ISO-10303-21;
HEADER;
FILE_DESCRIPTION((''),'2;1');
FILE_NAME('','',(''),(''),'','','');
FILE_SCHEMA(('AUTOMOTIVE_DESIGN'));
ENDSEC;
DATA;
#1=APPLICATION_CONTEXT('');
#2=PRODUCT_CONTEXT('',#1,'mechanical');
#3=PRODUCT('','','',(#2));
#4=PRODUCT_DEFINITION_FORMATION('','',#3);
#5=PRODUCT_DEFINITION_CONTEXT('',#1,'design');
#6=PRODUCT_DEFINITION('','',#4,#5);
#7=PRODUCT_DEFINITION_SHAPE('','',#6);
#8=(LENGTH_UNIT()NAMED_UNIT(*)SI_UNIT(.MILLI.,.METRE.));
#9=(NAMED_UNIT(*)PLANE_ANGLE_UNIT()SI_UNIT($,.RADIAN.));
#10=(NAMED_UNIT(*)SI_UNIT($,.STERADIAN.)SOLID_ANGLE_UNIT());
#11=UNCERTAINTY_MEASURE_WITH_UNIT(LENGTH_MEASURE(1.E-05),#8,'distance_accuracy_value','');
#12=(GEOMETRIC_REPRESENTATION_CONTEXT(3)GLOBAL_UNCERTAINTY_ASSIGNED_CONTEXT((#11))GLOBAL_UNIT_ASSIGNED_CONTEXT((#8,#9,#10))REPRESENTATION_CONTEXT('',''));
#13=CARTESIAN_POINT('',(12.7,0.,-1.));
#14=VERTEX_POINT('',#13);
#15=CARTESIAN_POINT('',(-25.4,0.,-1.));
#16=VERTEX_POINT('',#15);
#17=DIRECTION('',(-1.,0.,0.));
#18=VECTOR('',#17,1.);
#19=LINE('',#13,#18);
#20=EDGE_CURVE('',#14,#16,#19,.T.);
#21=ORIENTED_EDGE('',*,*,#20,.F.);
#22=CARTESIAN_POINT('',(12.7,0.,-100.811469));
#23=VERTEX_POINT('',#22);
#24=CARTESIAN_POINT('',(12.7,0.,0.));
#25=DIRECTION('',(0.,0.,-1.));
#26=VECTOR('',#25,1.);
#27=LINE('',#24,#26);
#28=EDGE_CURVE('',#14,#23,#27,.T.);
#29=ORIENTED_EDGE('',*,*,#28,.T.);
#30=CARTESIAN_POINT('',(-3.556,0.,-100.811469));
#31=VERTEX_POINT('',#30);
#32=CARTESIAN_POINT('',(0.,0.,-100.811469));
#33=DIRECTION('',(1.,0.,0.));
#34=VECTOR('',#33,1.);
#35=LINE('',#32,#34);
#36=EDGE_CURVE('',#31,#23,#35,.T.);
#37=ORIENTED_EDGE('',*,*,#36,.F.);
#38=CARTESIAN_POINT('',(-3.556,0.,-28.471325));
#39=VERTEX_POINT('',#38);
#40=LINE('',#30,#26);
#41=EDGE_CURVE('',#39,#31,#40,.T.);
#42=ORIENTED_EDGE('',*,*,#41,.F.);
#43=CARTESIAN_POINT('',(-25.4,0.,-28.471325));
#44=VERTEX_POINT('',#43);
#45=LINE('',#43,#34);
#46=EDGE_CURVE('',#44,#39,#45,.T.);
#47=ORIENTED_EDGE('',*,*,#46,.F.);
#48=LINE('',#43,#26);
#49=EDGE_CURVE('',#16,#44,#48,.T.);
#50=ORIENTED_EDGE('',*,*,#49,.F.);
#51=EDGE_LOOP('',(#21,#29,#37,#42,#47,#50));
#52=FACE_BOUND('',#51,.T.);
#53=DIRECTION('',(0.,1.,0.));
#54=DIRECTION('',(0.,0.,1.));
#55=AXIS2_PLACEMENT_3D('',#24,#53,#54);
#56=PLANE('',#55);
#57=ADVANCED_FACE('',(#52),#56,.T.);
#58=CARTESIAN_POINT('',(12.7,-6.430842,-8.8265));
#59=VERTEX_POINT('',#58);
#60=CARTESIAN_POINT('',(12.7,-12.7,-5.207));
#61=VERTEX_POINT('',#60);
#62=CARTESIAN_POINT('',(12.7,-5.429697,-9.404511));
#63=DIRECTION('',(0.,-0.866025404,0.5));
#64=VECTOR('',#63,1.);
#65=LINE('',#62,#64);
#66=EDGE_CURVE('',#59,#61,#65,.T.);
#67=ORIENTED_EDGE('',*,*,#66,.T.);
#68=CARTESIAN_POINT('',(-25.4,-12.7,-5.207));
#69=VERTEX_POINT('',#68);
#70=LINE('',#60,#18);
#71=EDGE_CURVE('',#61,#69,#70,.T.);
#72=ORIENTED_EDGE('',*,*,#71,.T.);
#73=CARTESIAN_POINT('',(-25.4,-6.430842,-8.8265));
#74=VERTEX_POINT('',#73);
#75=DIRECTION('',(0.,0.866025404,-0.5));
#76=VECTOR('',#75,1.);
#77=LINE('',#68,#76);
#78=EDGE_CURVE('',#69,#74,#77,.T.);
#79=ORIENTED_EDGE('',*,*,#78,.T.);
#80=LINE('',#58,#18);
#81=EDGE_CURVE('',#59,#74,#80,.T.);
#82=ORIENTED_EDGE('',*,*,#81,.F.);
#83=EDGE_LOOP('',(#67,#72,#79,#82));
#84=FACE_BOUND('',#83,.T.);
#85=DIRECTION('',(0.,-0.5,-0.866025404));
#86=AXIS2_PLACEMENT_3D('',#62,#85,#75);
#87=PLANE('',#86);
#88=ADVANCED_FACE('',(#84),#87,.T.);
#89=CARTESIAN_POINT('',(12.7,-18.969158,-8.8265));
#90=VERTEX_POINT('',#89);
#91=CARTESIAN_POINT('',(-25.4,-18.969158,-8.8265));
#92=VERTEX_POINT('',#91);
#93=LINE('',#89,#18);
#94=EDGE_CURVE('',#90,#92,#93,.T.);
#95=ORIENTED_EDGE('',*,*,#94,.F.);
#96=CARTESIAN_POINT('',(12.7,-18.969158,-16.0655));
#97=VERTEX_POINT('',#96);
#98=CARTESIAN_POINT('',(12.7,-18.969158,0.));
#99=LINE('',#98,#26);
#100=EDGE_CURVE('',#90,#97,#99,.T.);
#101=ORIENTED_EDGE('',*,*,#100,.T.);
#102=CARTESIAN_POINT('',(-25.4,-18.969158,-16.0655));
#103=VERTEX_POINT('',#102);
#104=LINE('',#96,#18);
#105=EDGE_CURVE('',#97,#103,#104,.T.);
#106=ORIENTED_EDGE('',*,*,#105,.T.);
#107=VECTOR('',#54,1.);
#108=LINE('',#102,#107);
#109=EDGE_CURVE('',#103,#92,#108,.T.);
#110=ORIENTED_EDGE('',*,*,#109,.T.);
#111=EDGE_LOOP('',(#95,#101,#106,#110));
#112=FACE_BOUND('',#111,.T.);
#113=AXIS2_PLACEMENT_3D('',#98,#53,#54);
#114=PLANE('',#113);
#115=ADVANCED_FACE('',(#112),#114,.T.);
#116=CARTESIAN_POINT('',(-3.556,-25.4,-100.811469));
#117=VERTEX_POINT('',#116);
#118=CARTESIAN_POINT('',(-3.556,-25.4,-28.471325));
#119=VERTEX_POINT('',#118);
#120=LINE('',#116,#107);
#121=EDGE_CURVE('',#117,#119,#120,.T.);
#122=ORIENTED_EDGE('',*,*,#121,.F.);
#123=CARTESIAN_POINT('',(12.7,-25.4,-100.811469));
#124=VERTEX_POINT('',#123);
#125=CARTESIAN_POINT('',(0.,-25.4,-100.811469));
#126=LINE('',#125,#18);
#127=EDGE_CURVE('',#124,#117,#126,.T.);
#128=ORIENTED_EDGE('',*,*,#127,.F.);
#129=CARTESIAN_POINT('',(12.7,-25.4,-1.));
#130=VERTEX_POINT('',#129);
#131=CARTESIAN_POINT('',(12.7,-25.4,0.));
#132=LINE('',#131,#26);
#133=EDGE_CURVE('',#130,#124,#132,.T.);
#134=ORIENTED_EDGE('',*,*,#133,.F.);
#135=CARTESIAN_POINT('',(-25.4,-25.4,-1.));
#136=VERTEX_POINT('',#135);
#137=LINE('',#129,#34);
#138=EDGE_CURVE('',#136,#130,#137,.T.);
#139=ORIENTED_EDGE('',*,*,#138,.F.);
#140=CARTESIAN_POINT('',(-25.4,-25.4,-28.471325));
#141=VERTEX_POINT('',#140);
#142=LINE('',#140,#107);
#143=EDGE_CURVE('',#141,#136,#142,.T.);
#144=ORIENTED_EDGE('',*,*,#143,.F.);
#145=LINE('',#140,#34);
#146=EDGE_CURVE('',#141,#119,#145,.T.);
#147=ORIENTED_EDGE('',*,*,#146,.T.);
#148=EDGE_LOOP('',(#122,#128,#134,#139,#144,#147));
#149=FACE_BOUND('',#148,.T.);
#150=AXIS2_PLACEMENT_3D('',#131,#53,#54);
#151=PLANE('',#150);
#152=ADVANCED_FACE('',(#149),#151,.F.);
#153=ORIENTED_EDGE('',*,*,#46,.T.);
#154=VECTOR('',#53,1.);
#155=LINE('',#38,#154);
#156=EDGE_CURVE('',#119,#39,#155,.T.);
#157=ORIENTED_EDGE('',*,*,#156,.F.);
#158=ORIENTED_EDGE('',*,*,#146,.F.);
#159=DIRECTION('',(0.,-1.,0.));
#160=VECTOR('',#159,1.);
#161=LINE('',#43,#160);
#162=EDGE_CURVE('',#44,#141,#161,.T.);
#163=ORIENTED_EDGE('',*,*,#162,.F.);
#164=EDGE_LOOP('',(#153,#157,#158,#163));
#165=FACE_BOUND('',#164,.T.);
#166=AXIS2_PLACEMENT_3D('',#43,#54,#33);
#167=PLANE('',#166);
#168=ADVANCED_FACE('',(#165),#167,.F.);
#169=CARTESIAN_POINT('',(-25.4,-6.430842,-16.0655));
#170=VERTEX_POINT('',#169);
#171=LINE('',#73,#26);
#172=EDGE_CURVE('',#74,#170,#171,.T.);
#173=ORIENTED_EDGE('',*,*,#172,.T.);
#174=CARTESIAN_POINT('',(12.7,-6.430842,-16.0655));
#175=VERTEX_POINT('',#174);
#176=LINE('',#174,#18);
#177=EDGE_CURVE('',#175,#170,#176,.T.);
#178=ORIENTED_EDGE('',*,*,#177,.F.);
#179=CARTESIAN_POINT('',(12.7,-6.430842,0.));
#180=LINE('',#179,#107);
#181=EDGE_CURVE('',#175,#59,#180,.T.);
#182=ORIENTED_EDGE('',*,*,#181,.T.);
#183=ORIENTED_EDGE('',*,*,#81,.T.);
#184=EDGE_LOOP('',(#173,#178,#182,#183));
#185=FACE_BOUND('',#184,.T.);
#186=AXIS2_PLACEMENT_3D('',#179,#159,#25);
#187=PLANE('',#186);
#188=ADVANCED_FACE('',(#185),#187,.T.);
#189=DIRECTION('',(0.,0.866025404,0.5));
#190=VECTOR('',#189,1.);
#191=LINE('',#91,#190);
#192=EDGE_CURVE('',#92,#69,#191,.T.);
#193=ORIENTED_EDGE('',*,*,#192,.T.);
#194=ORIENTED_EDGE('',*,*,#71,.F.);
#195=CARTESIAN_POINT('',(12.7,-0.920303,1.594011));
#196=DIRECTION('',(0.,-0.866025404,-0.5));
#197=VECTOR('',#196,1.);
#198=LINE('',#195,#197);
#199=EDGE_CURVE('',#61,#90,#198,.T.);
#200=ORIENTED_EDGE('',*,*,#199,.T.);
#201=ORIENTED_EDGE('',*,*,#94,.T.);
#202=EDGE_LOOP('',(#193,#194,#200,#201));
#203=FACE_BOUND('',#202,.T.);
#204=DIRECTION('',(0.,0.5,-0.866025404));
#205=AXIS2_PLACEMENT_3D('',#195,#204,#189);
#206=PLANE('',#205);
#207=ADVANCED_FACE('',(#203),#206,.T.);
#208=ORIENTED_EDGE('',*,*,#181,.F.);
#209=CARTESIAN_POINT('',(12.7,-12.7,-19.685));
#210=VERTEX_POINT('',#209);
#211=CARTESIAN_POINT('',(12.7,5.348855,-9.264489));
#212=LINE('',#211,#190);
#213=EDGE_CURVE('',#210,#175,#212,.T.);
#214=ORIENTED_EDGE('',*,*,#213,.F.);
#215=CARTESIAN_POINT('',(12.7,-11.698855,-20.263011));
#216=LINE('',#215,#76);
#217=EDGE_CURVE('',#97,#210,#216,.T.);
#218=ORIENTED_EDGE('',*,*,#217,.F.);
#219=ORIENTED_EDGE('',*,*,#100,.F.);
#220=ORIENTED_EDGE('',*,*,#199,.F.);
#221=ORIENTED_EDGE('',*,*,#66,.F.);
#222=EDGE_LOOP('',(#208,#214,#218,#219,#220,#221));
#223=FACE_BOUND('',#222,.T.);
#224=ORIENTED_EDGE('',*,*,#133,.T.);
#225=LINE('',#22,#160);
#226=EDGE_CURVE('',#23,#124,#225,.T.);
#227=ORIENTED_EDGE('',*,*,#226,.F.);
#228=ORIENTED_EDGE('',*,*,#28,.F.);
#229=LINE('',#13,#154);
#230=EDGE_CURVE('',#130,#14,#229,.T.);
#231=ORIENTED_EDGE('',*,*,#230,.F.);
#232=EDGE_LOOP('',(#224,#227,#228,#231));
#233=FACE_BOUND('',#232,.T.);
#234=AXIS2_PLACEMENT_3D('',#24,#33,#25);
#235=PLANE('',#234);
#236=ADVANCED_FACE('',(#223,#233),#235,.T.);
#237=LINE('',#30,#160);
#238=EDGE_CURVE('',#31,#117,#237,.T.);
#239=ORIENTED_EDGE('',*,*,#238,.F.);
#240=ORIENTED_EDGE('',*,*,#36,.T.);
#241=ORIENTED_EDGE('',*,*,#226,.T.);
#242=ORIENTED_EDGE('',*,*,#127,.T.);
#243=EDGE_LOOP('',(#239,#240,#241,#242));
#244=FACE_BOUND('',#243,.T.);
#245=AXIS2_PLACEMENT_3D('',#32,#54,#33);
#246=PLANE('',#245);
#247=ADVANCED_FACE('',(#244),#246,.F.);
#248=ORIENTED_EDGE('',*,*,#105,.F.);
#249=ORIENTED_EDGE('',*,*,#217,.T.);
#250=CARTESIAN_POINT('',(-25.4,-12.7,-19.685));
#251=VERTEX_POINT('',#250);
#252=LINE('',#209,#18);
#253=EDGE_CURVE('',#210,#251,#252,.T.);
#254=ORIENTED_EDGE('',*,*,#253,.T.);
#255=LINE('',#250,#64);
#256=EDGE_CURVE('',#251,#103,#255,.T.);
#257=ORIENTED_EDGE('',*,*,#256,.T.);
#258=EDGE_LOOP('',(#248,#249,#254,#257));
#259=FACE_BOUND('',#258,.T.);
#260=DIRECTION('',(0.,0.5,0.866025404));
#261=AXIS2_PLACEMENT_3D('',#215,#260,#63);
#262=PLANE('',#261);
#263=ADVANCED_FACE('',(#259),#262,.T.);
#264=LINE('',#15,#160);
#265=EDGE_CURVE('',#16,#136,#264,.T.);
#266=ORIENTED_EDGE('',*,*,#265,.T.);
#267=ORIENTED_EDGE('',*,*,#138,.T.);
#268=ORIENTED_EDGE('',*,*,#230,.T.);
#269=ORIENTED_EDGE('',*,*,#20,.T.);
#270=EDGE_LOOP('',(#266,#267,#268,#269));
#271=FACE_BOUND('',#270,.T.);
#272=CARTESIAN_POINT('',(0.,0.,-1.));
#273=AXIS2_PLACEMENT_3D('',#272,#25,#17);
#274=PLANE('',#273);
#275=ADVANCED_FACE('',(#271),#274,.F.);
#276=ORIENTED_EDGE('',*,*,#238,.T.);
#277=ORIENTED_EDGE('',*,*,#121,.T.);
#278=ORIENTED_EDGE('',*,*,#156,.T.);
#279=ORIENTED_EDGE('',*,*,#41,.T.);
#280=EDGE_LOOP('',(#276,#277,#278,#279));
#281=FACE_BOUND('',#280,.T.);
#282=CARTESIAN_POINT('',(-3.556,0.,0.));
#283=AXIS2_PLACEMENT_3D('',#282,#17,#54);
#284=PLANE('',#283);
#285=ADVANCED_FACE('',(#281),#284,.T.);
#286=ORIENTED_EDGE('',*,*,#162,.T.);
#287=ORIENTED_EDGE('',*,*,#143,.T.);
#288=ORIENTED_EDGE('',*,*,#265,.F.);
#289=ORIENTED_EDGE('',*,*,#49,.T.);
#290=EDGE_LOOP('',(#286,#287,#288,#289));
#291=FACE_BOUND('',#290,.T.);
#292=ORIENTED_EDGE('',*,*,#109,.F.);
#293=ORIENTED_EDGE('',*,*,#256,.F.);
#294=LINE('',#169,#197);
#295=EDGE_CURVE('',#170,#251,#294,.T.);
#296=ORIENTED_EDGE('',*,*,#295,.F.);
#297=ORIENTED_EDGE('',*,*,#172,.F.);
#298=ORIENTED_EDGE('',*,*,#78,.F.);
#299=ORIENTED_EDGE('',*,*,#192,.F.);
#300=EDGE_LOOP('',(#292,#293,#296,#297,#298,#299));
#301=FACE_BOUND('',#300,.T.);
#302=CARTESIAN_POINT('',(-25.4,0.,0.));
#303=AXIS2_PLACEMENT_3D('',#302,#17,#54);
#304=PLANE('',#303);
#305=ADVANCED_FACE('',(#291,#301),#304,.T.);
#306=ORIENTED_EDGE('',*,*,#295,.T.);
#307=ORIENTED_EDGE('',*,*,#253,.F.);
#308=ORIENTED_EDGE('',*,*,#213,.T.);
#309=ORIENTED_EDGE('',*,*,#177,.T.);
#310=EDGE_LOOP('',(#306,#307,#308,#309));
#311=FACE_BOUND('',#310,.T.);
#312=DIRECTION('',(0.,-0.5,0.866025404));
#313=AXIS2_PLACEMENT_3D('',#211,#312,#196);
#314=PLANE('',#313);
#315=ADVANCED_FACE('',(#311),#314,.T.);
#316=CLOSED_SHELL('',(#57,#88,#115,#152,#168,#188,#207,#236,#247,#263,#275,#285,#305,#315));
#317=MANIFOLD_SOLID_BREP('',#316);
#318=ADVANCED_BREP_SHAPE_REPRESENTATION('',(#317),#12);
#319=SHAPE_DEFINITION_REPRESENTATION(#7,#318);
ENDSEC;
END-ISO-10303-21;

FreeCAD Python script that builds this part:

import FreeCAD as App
import Part
import Sketcher

V = App.Vector
Q = App.Units.Quantity


def add_polygon(sketch, points):
    """Adds a closed chain of lines whose ends are joined by coincident constraints."""
    first, n = sketch.GeometryCount, len(points)
    for a, b in zip(points, points[1:] + points[:1]):
        sketch.addGeometry(Part.LineSegment(App.Vector(*a, 0), App.Vector(*b, 0)), False)
    for i in range(n):
        sketch.addConstraint(Sketcher.Constraint("Coincident", first + i, 2, first + (i + 1) % n, 1))

doc = App.newDocument("Part")
body = doc.addObject("PartDesign::Body", "Body")

# Sketch on YZ plane
sketch1 = doc.addObject("Sketcher::SketchObject", "Sketch")
body.addObject(sketch1)
sketch1.AttachmentSupport = (doc.YZ_Plane, [""])
sketch1.MapMode = "FlatFace"
add_polygon(sketch1, [(0, 0), (-25, 0), (-25, -75), (0, -75)])  # lines 0-3
add_polygon(sketch1, [(-6, -16), (-13, -20), (-19, -16), (-19, -9), (-13, -5), (-6, -9)])  # lines 4-9
sketch1.addConstraint([
    Sketcher.Constraint("Horizontal", 0),
    Sketcher.Constraint("Vertical", 1),
    Sketcher.Constraint("Horizontal", 2),
    Sketcher.Constraint("Vertical", 3),
    Sketcher.Constraint("Vertical", 6),
    Sketcher.Constraint("Vertical", 9),
    Sketcher.Constraint("Coincident", 3, 2, -1, 1),
    Sketcher.Constraint("Parallel", 4, 7),
    Sketcher.Constraint("Parallel", 5, 8),
    Sketcher.Constraint("Horizontal", 6, 2, 8, 2),
    Sketcher.Constraint("Horizontal", 5, 2, 9, 2),
    Sketcher.Constraint("Vertical", 4, 2, 7, 2),
    Sketcher.Constraint("DistanceX", 0, 2, 0, 1, Q("1 in")),
    Sketcher.Constraint("Angle", 4, Q("-150 deg")),
    Sketcher.Constraint("DistanceX", 4, 2, -1, 1, Q("0.5 in")),
    Sketcher.Constraint("DistanceY", 6, 1, 6, 2, Q("0.285 in")),
    Sketcher.Constraint("DistanceY", 4, 2, 7, 2, Q("0.57 in")),
    Sketcher.Constraint("DistanceY", 4, 2, -1, 1, Q("0.775 in")),
    Sketcher.Constraint("DistanceY", 1, 2, 1, 1, 75.411469),
])
pad1 = doc.addObject("PartDesign::Pad", "Pad")
body.addObject(pad1)
pad1.Profile = sketch1
pad1.Length = Q("0.5 in")

# Sketch on XY plane
sketch2 = doc.addObject("Sketcher::SketchObject", "Sketch001")
body.addObject(sketch2)
sketch2.AttachmentSupport = (doc.XY_Plane, [""])
sketch2.MapMode = "FlatFace"
sketch2.AttachmentOffset = App.Placement(V(0, 0, -75.411469), App.Rotation())
add_polygon(sketch2, [(13, 0), (13, -25), (0, -25), (0, 0)])  # lines 0-3
sketch2.addConstraint([
    Sketcher.Constraint("Vertical", 0),
    Sketcher.Constraint("Horizontal", 1),
    Sketcher.Constraint("Vertical", 2),
    Sketcher.Constraint("Horizontal", 3),
    Sketcher.Constraint("Coincident", 2, 2, -1, 1),
    Sketcher.Constraint("DistanceY", 0, 2, 0, 1, Q("1 in")),
    Sketcher.Constraint("DistanceX", 1, 2, 1, 1, Q("0.5 in")),
])
pad2 = doc.addObject("PartDesign::Pad", "Pad001")
body.addObject(pad2)
pad2.Profile = sketch2
pad2.Length = Q("1 in")
pad2.Reversed = True

# Sketch on YZ plane
sketch3 = doc.addObject("Sketcher::SketchObject", "Sketch002")
body.addObject(sketch3)
sketch3.AttachmentSupport = (doc.YZ_Plane, [""])
sketch3.MapMode = "FlatFace"
add_polygon(sketch3, [(0, -28), (-25, -28), (-25, -21), (0, -21)])  # lines 0-3
sketch3.addConstraint([
    Sketcher.Constraint("Horizontal", 0),
    Sketcher.Constraint("Vertical", 1),
    Sketcher.Constraint("Horizontal", 2),
    Sketcher.Constraint("Vertical", 3),
    Sketcher.Constraint("PointOnObject", 2, 2, -2),
    Sketcher.Constraint("DistanceX", 0, 2, 0, 1, Q("1 in")),
    Sketcher.Constraint("DistanceY", 1, 1, 1, 2, 7.642985),
    Sketcher.Constraint("DistanceY", 1, 2, -1, 1, 20.828339),
])
pad3 = doc.addObject("PartDesign::Pad", "Pad002")
body.addObject(pad3)
pad3.Profile = sketch3
pad3.Length = Q("1 in")
pad3.Reversed = True

# Sketch on YZ plane
sketch4 = doc.addObject("Sketcher::SketchObject", "Sketch003")
body.addObject(sketch4)
sketch4.AttachmentSupport = (doc.YZ_Plane, [""])
sketch4.MapMode = "FlatFace"
add_polygon(sketch4, [(0, -101), (-25, -101), (-25, -28), (0, -28)])  # lines 0-3
sketch4.addConstraint([
    Sketcher.Constraint("Horizontal", 0),
    Sketcher.Constraint("Vertical", 1),
    Sketcher.Constraint("Horizontal", 2),
    Sketcher.Constraint("Vertical", 3),
    Sketcher.Constraint("PointOnObject", 2, 2, -2),
    Sketcher.Constraint("DistanceX", 0, 2, 0, 1, Q("1 in")),
    Sketcher.Constraint("DistanceY", 1, 1, 1, 2, 72.340145),
    Sketcher.Constraint("DistanceY", 0, 2, -1, 1, 100.811469),
])
pocket1 = doc.addObject("PartDesign::Pocket", "Pocket")
body.addObject(pocket1)
pocket1.Profile = sketch4
pocket1.Length = Q("0.26 in")
pocket1.Reversed = True

# Sketch on YZ plane
sketch5 = doc.addObject("Sketcher::SketchObject", "Sketch004")
body.addObject(sketch5)
sketch5.AttachmentSupport = (doc.YZ_Plane, [""])
sketch5.MapMode = "FlatFace"
add_polygon(sketch5, [(0, -21), (-25, -21), (-25, 0), (0, 0)])  # lines 0-3
add_polygon(sketch5, [(-6, -16), (-6, -9), (-13, -5), (-19, -9), (-19, -16), (-13, -20)])  # lines 4-9
sketch5.addConstraint([
    Sketcher.Constraint("Horizontal", 0),
    Sketcher.Constraint("Vertical", 1),
    Sketcher.Constraint("Horizontal", 2),
    Sketcher.Constraint("Vertical", 3),
    Sketcher.Constraint("Vertical", 4),
    Sketcher.Constraint("Vertical", 7),
    Sketcher.Constraint("Coincident", 2, 2, -1, 1),
    Sketcher.Constraint("Parallel", 5, 8),
    Sketcher.Constraint("Parallel", 6, 9),
    Sketcher.Constraint("Horizontal", 4, 2, 6, 2),
    Sketcher.Constraint("Horizontal", 7, 2, 9, 2),
    Sketcher.Constraint("Vertical", 5, 2, 8, 2),
    Sketcher.Constraint("DistanceX", 0, 2, 0, 1, Q("1 in")),
    Sketcher.Constraint("Angle", 5, Q("150 deg")),
    Sketcher.Constraint("DistanceX", 5, 2, -1, 1, Q("0.5 in")),
    Sketcher.Constraint("DistanceY", 4, 1, 4, 2, Q("0.285 in")),
    Sketcher.Constraint("Distance", 5, Q("0.285 in")),
    Sketcher.Constraint("DistanceY", 5, 2, -1, 1, Q("0.205 in")),
    Sketcher.Constraint("DistanceY", 1, 1, 1, 2, 20.828339),
])
pad4 = doc.addObject("PartDesign::Pad", "Pad003")
body.addObject(pad4)
pad4.Profile = sketch5
pad4.Length = Q("1 in")
pad4.Reversed = True

# Sketch on YZ plane
sketch6 = doc.addObject("Sketcher::SketchObject", "Sketch005")
body.addObject(sketch6)
sketch6.AttachmentSupport = (doc.YZ_Plane, [""])
sketch6.MapMode = "FlatFace"
sketch6.AttachmentOffset = App.Placement(V(0, 0, 0.26 * 25.4), App.Rotation())
add_polygon(sketch6, [(0, -101), (-25, -101), (-25, -28), (0, -28)])  # lines 0-3
sketch6.addConstraint([
    Sketcher.Constraint("Horizontal", 0),
    Sketcher.Constraint("Vertical", 1),
    Sketcher.Constraint("Horizontal", 2),
    Sketcher.Constraint("Vertical", 3),
    Sketcher.Constraint("PointOnObject", 2, 2, -2),
    Sketcher.Constraint("DistanceX", 0, 2, 0, 1, Q("1 in")),
    Sketcher.Constraint("DistanceY", 1, 1, 1, 2, 72.340145),
    Sketcher.Constraint("DistanceY", 0, 2, -1, 1, 100.811469),
])
pad5 = doc.addObject("PartDesign::Pad", "Pad004")
body.addObject(pad5)
pad5.Profile = sketch6
pad5.Length = Q("0.4 in")
pad5.Reversed = True

# Sketch on XY plane
sketch7 = doc.addObject("Sketcher::SketchObject", "Sketch006")
body.addObject(sketch7)
sketch7.AttachmentSupport = (doc.XY_Plane, [""])
sketch7.MapMode = "FlatFace"
add_polygon(sketch7, [(-25, 0), (-25, -25), (13, -25), (13, 0)])  # lines 0-3
sketch7.addConstraint([
    Sketcher.Constraint("Vertical", 0),
    Sketcher.Constraint("Horizontal", 1),
    Sketcher.Constraint("Vertical", 2),
    Sketcher.Constraint("Horizontal", 3),
    Sketcher.Constraint("PointOnObject", 2, 2, -1),
    Sketcher.Constraint("DistanceY", 0, 2, 0, 1, Q("1 in")),
    Sketcher.Constraint("DistanceX", 1, 1, 1, 2, Q("1.5 in")),
    Sketcher.Constraint("DistanceX", 0, 2, -1, 1, Q("1 in")),
])
pocket2 = doc.addObject("PartDesign::Pocket", "Pocket001")
body.addObject(pocket2)
pocket2.Profile = sketch7
pocket2.Length = 1

doc.recompute()
